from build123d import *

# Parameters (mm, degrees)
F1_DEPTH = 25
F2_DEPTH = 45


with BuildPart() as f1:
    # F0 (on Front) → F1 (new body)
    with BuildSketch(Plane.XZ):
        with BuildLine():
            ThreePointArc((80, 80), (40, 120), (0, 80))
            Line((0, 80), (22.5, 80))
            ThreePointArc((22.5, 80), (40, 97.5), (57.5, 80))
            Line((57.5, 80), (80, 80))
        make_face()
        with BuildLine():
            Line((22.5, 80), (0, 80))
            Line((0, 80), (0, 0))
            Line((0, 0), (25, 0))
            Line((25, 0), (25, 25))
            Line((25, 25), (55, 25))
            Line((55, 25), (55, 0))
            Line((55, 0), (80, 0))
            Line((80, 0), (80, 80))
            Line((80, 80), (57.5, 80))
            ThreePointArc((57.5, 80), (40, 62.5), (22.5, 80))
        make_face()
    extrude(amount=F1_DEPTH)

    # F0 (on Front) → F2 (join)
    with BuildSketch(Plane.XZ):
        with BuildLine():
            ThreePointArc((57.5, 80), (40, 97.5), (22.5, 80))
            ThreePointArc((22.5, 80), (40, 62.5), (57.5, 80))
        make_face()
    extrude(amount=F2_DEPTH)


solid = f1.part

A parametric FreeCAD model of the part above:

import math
import FreeCAD as App
import Part
import Sketcher

V = App.Vector
Q = App.Units.Quantity

doc = App.newDocument("Part")
body = doc.addObject("PartDesign::Body", "Body")

sketch1 = body.newObject("Sketcher::SketchObject", "Sketch")
sketch1.AttachmentSupport = (doc.getObject("XZ_Plane"), [""])
sketch1.MapMode = "FlatFace"
sketch1.addGeometry(Part.ArcOfCircle(Part.Circle(V(40, 80, 0), V(0, 0, 1), 40), math.radians(0), math.radians(180)), False)
sketch1.addGeometry(Part.LineSegment(V(0, 80, 0), V(0, 0, 0)), False)
sketch1.addGeometry(Part.LineSegment(V(0, 0, 0), V(25, 0, 0)), False)
sketch1.addGeometry(Part.LineSegment(V(25, 0, 0), V(25, 25, 0)), False)
sketch1.addGeometry(Part.LineSegment(V(25, 25, 0), V(55, 25, 0)), False)
sketch1.addGeometry(Part.LineSegment(V(55, 25, 0), V(55, 0, 0)), False)
sketch1.addGeometry(Part.LineSegment(V(55, 0, 0), V(80, 0, 0)), False)
sketch1.addGeometry(Part.LineSegment(V(80, 0, 0), V(80, 80, 0)), False)
sketch1.addGeometry(Part.Circle(V(40, 80, 0), V(0, 0, 1), 18), False)
sketch1.addConstraint(Sketcher.Constraint("Tangent", 0, 2, 1, 1))
sketch1.addConstraint(Sketcher.Constraint("Coincident", 1, 2, 2, 1))
sketch1.addConstraint(Sketcher.Constraint("Coincident", 2, 2, 3, 1))
sketch1.addConstraint(Sketcher.Constraint("Coincident", 3, 2, 4, 1))
sketch1.addConstraint(Sketcher.Constraint("Coincident", 4, 2, 5, 1))
sketch1.addConstraint(Sketcher.Constraint("Coincident", 5, 2, 6, 1))
sketch1.addConstraint(Sketcher.Constraint("Coincident", 6, 2, 7, 1))
sketch1.addConstraint(Sketcher.Constraint("Tangent", 7, 2, 0, 1))
sketch1.addConstraint(Sketcher.Constraint("Vertical", 1))
sketch1.addConstraint(Sketcher.Constraint("Horizontal", 2))
sketch1.addConstraint(Sketcher.Constraint("Vertical", 3))
sketch1.addConstraint(Sketcher.Constraint("Horizontal", 4))
sketch1.addConstraint(Sketcher.Constraint("Vertical", 5))
sketch1.addConstraint(Sketcher.Constraint("Horizontal", 6))
sketch1.addConstraint(Sketcher.Constraint("Vertical", 7))
sketch1.addConstraint(Sketcher.Constraint("Coincident", 1, 2, -1, 1))
sketch1.addConstraint(Sketcher.Constraint("Coincident", 8, 3, 0, 3))
sketch1.addConstraint(Sketcher.Constraint("PointOnObject", 5, 2, -1))
sketch1.addConstraint(Sketcher.Constraint("Equal", 2, 6))
sketch1.addConstraint(Sketcher.Constraint("Equal", 6, 3))
sketch1.addConstraint(Sketcher.Constraint("Diameter", 8, Q("35 mm")))
sketch1.addConstraint(Sketcher.Constraint("Radius", 0, Q("40 mm")))
sketch1.addConstraint(Sketcher.Constraint("DistanceX", 2, 1, 2, 2, Q("25 mm")))
sketch1.addConstraint(Sketcher.Constraint("DistanceY", 1, 2, 1, 1, Q("80 mm")))
pad1 = body.newObject("PartDesign::Pad", "Pad")
pad1.Profile = sketch1
pad1.Length = 25

sketch2 = body.newObject("Sketcher::SketchObject", "Sketch001")
sketch2.AttachmentSupport = (doc.getObject("XZ_Plane"), [""])
sketch2.MapMode = "FlatFace"
sketch2.addGeometry(Part.Circle(V(40, 80, 0), V(0, 0, 1), 18), False)
sketch2.addConstraint(Sketcher.Constraint("Diameter", 0, Q("35 mm")))
sketch2.addConstraint(Sketcher.Constraint("DistanceX", -1, 1, 0, 3, Q("40 mm")))
sketch2.addConstraint(Sketcher.Constraint("DistanceY", -1, 1, 0, 3, Q("80 mm")))
pad2 = body.newObject("PartDesign::Pad", "Pad001")
pad2.Profile = sketch2
pad2.Length = 45

doc.recompute()
